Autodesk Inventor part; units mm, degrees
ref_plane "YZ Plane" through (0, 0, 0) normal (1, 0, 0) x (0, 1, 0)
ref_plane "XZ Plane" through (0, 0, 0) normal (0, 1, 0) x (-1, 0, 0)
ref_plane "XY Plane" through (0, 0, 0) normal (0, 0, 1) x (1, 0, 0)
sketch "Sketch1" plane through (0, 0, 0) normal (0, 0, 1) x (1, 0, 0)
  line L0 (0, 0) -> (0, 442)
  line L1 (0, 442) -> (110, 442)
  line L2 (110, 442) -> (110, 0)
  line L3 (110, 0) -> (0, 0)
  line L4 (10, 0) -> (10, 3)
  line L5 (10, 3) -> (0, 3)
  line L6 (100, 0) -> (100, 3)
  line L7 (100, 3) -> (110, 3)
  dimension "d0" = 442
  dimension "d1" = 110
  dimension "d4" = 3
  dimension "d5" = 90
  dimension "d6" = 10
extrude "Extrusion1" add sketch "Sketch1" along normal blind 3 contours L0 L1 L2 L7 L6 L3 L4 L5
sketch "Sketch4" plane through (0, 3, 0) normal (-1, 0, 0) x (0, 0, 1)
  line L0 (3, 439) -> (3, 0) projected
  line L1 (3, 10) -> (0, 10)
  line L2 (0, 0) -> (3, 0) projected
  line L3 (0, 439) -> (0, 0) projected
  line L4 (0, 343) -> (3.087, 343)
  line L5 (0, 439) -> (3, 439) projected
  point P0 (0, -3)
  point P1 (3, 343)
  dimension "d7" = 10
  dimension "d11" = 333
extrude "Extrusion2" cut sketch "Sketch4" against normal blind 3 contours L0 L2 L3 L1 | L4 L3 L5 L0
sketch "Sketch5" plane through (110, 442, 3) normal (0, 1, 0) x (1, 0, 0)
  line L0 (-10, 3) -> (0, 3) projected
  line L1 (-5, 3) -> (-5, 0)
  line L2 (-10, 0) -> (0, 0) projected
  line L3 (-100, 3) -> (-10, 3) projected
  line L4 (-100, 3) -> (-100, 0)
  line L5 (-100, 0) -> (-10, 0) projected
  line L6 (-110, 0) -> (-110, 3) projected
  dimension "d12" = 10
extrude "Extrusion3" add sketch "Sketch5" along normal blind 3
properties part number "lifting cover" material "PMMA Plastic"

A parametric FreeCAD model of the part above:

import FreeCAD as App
import Part
import Sketcher
Q = App.Units.Quantity

doc = App.newDocument("Part")
body = doc.addObject("PartDesign::Body", "Body")

# Sketch on XY plane
sketch1 = doc.addObject("Sketcher::SketchObject", "Sketch")
body.addObject(sketch1)
sketch1.AttachmentSupport = (doc.XY_Plane, [""])
sketch1.MapMode = "FlatFace"
sketch1.addGeometry([
    Part.LineSegment(App.Vector(0, 442, 0), App.Vector(0, 3, 0)),  # 0
    Part.LineSegment(App.Vector(0, 3, 0), App.Vector(10, 3, 0)),  # 1
    Part.LineSegment(App.Vector(10, 3, 0), App.Vector(10, 0, 0)),  # 2
    Part.LineSegment(App.Vector(10, 0, 0), App.Vector(100, 0, 0)),  # 3
    Part.LineSegment(App.Vector(100, 0, 0), App.Vector(100, 3, 0)),  # 4
    Part.LineSegment(App.Vector(100, 3, 0), App.Vector(110, 3, 0)),  # 5
    Part.LineSegment(App.Vector(110, 3, 0), App.Vector(110, 442, 0)),  # 6
    Part.LineSegment(App.Vector(110, 442, 0), App.Vector(0, 442, 0)),  # 7
], False)
sketch1.addConstraint([
    Sketcher.Constraint("Coincident", 0, 2, 1, 1),
    Sketcher.Constraint("Coincident", 1, 2, 2, 1),
    Sketcher.Constraint("Coincident", 2, 2, 3, 1),
    Sketcher.Constraint("Coincident", 3, 2, 4, 1),
    Sketcher.Constraint("Coincident", 4, 2, 5, 1),
    Sketcher.Constraint("Coincident", 5, 2, 6, 1),
    Sketcher.Constraint("Coincident", 6, 2, 7, 1),
    Sketcher.Constraint("Coincident", 7, 2, 0, 1),
    Sketcher.Constraint("Vertical", 0),
    Sketcher.Constraint("Horizontal", 1),
    Sketcher.Constraint("Vertical", 2),
    Sketcher.Constraint("Horizontal", 3),
    Sketcher.Constraint("Vertical", 4),
    Sketcher.Constraint("Horizontal", 5),
    Sketcher.Constraint("Vertical", 6),
    Sketcher.Constraint("Horizontal", 7),
    Sketcher.Constraint("PointOnObject", 0, 2, -2),
    Sketcher.Constraint("PointOnObject", 2, 2, -1),
    Sketcher.Constraint("Horizontal", 1, 2, 4, 2),
    Sketcher.Constraint("Equal", 1, 5),
    Sketcher.Constraint("DistanceX", 1, 1, 1, 2, Q("10 mm")),
    Sketcher.Constraint("DistanceX", 3, 1, 3, 2, Q("90 mm")),
    Sketcher.Constraint("DistanceY", 2, 2, 2, 1, Q("3 mm")),
    Sketcher.Constraint("DistanceY", -1, 1, 6, 2, Q("442 mm")),
])
pad1 = doc.addObject("PartDesign::Pad", "Pad")
body.addObject(pad1)
pad1.Profile = sketch1
pad1.Length = 3

# Sketch on YZ plane
sketch2 = doc.addObject("Sketcher::SketchObject", "Sketch001")
body.addObject(sketch2)
sketch2.AttachmentSupport = (doc.YZ_Plane, [""])
sketch2.MapMode = "FlatFace"
sketch2.addGeometry([
    Part.LineSegment(App.Vector(3, 3, 0), App.Vector(13, 3, 0)),  # 0
    Part.LineSegment(App.Vector(13, 3, 0), App.Vector(13, 0, 0)),  # 1
    Part.LineSegment(App.Vector(13, 0, 0), App.Vector(3, 0, 0)),  # 2
    Part.LineSegment(App.Vector(3, 0, 0), App.Vector(3, 3, 0)),  # 3
    Part.LineSegment(App.Vector(346, 0, 0), App.Vector(346, 3, 0)),  # 4
    Part.LineSegment(App.Vector(346, 3, 0), App.Vector(442, 3, 0)),  # 5
    Part.LineSegment(App.Vector(442, 3, 0), App.Vector(442, 0, 0)),  # 6
    Part.LineSegment(App.Vector(442, 0, 0), App.Vector(346, 0, 0)),  # 7
], False)
sketch2.addConstraint([
    Sketcher.Constraint("Coincident", 0, 2, 1, 1),
    Sketcher.Constraint("Coincident", 1, 2, 2, 1),
    Sketcher.Constraint("Coincident", 2, 2, 3, 1),
    Sketcher.Constraint("Coincident", 3, 2, 0, 1),
    Sketcher.Constraint("Coincident", 4, 2, 5, 1),
    Sketcher.Constraint("Coincident", 5, 2, 6, 1),
    Sketcher.Constraint("Coincident", 6, 2, 7, 1),
    Sketcher.Constraint("Coincident", 7, 2, 4, 1),
    Sketcher.Constraint("Horizontal", 0),
    Sketcher.Constraint("Vertical", 1),
    Sketcher.Constraint("Horizontal", 2),
    Sketcher.Constraint("Vertical", 3),
    Sketcher.Constraint("Vertical", 4),
    Sketcher.Constraint("Horizontal", 5),
    Sketcher.Constraint("Vertical", 6),
    Sketcher.Constraint("Horizontal", 7),
    Sketcher.Constraint("PointOnObject", 1, 2, -1),
    Sketcher.Constraint("PointOnObject", 6, 2, -1),
    Sketcher.Constraint("Horizontal", 3, 2, 4, 2),
    Sketcher.Constraint("DistanceX", 0, 1, 0, 2, Q("10 mm")),
    Sketcher.Constraint("DistanceX", 0, 2, 4, 2, Q("333 mm")),
    Sketcher.Constraint("DistanceX", 5, 1, 5, 2, Q("96 mm")),
    Sketcher.Constraint("DistanceY", 1, 2, 1, 1, Q("3 mm")),
    Sketcher.Constraint("DistanceX", -1, 1, 0, 2, Q("13 mm")),
])
pocket1 = doc.addObject("PartDesign::Pocket", "Pocket")
body.addObject(pocket1)
pocket1.Profile = sketch2
pocket1.Length = 3
pocket1.Reversed = True

# Sketch on XZ plane
sketch3 = doc.addObject("Sketcher::SketchObject", "Sketch002")
body.addObject(sketch3)
sketch3.AttachmentSupport = (doc.XZ_Plane, [""])
sketch3.MapMode = "FlatFace"
sketch3.AttachmentOffset = App.Placement(App.Vector(0, 0, -442), App.Rotation())
sketch3.addGeometry([
    Part.LineSegment(App.Vector(105, 0, 0), App.Vector(10, 0, 0)),
    Part.LineSegment(App.Vector(10, 0, 0), App.Vector(10, 3, 0)),
    Part.LineSegment(App.Vector(10, 3, 0), App.Vector(105, 3, 0)),
    Part.LineSegment(App.Vector(105, 3, 0), App.Vector(105, 0, 0)),
], False)
sketch3.addConstraint([
    Sketcher.Constraint("Coincident", 0, 2, 1, 1),
    Sketcher.Constraint("Coincident", 1, 2, 2, 1),
    Sketcher.Constraint("Coincident", 2, 2, 3, 1),
    Sketcher.Constraint("Coincident", 3, 2, 0, 1),
    Sketcher.Constraint("Horizontal", 0),
    Sketcher.Constraint("Vertical", 1),
    Sketcher.Constraint("Horizontal", 2),
    Sketcher.Constraint("Vertical", 3),
    Sketcher.Constraint("PointOnObject", 0, 2, -1),
    Sketcher.Constraint("DistanceX", -1, 1, 0, 2, Q("10 mm")),
    Sketcher.Constraint("DistanceX", 0, 2, 0, 1, Q("95 mm")),
    Sketcher.Constraint("DistanceY", 1, 1, 1, 2, Q("3 mm")),
])
pad2 = doc.addObject("PartDesign::Pad", "Pad001")
body.addObject(pad2)
pad2.Profile = sketch3
pad2.Length = 3
pad2.Reversed = True

doc.recompute()
